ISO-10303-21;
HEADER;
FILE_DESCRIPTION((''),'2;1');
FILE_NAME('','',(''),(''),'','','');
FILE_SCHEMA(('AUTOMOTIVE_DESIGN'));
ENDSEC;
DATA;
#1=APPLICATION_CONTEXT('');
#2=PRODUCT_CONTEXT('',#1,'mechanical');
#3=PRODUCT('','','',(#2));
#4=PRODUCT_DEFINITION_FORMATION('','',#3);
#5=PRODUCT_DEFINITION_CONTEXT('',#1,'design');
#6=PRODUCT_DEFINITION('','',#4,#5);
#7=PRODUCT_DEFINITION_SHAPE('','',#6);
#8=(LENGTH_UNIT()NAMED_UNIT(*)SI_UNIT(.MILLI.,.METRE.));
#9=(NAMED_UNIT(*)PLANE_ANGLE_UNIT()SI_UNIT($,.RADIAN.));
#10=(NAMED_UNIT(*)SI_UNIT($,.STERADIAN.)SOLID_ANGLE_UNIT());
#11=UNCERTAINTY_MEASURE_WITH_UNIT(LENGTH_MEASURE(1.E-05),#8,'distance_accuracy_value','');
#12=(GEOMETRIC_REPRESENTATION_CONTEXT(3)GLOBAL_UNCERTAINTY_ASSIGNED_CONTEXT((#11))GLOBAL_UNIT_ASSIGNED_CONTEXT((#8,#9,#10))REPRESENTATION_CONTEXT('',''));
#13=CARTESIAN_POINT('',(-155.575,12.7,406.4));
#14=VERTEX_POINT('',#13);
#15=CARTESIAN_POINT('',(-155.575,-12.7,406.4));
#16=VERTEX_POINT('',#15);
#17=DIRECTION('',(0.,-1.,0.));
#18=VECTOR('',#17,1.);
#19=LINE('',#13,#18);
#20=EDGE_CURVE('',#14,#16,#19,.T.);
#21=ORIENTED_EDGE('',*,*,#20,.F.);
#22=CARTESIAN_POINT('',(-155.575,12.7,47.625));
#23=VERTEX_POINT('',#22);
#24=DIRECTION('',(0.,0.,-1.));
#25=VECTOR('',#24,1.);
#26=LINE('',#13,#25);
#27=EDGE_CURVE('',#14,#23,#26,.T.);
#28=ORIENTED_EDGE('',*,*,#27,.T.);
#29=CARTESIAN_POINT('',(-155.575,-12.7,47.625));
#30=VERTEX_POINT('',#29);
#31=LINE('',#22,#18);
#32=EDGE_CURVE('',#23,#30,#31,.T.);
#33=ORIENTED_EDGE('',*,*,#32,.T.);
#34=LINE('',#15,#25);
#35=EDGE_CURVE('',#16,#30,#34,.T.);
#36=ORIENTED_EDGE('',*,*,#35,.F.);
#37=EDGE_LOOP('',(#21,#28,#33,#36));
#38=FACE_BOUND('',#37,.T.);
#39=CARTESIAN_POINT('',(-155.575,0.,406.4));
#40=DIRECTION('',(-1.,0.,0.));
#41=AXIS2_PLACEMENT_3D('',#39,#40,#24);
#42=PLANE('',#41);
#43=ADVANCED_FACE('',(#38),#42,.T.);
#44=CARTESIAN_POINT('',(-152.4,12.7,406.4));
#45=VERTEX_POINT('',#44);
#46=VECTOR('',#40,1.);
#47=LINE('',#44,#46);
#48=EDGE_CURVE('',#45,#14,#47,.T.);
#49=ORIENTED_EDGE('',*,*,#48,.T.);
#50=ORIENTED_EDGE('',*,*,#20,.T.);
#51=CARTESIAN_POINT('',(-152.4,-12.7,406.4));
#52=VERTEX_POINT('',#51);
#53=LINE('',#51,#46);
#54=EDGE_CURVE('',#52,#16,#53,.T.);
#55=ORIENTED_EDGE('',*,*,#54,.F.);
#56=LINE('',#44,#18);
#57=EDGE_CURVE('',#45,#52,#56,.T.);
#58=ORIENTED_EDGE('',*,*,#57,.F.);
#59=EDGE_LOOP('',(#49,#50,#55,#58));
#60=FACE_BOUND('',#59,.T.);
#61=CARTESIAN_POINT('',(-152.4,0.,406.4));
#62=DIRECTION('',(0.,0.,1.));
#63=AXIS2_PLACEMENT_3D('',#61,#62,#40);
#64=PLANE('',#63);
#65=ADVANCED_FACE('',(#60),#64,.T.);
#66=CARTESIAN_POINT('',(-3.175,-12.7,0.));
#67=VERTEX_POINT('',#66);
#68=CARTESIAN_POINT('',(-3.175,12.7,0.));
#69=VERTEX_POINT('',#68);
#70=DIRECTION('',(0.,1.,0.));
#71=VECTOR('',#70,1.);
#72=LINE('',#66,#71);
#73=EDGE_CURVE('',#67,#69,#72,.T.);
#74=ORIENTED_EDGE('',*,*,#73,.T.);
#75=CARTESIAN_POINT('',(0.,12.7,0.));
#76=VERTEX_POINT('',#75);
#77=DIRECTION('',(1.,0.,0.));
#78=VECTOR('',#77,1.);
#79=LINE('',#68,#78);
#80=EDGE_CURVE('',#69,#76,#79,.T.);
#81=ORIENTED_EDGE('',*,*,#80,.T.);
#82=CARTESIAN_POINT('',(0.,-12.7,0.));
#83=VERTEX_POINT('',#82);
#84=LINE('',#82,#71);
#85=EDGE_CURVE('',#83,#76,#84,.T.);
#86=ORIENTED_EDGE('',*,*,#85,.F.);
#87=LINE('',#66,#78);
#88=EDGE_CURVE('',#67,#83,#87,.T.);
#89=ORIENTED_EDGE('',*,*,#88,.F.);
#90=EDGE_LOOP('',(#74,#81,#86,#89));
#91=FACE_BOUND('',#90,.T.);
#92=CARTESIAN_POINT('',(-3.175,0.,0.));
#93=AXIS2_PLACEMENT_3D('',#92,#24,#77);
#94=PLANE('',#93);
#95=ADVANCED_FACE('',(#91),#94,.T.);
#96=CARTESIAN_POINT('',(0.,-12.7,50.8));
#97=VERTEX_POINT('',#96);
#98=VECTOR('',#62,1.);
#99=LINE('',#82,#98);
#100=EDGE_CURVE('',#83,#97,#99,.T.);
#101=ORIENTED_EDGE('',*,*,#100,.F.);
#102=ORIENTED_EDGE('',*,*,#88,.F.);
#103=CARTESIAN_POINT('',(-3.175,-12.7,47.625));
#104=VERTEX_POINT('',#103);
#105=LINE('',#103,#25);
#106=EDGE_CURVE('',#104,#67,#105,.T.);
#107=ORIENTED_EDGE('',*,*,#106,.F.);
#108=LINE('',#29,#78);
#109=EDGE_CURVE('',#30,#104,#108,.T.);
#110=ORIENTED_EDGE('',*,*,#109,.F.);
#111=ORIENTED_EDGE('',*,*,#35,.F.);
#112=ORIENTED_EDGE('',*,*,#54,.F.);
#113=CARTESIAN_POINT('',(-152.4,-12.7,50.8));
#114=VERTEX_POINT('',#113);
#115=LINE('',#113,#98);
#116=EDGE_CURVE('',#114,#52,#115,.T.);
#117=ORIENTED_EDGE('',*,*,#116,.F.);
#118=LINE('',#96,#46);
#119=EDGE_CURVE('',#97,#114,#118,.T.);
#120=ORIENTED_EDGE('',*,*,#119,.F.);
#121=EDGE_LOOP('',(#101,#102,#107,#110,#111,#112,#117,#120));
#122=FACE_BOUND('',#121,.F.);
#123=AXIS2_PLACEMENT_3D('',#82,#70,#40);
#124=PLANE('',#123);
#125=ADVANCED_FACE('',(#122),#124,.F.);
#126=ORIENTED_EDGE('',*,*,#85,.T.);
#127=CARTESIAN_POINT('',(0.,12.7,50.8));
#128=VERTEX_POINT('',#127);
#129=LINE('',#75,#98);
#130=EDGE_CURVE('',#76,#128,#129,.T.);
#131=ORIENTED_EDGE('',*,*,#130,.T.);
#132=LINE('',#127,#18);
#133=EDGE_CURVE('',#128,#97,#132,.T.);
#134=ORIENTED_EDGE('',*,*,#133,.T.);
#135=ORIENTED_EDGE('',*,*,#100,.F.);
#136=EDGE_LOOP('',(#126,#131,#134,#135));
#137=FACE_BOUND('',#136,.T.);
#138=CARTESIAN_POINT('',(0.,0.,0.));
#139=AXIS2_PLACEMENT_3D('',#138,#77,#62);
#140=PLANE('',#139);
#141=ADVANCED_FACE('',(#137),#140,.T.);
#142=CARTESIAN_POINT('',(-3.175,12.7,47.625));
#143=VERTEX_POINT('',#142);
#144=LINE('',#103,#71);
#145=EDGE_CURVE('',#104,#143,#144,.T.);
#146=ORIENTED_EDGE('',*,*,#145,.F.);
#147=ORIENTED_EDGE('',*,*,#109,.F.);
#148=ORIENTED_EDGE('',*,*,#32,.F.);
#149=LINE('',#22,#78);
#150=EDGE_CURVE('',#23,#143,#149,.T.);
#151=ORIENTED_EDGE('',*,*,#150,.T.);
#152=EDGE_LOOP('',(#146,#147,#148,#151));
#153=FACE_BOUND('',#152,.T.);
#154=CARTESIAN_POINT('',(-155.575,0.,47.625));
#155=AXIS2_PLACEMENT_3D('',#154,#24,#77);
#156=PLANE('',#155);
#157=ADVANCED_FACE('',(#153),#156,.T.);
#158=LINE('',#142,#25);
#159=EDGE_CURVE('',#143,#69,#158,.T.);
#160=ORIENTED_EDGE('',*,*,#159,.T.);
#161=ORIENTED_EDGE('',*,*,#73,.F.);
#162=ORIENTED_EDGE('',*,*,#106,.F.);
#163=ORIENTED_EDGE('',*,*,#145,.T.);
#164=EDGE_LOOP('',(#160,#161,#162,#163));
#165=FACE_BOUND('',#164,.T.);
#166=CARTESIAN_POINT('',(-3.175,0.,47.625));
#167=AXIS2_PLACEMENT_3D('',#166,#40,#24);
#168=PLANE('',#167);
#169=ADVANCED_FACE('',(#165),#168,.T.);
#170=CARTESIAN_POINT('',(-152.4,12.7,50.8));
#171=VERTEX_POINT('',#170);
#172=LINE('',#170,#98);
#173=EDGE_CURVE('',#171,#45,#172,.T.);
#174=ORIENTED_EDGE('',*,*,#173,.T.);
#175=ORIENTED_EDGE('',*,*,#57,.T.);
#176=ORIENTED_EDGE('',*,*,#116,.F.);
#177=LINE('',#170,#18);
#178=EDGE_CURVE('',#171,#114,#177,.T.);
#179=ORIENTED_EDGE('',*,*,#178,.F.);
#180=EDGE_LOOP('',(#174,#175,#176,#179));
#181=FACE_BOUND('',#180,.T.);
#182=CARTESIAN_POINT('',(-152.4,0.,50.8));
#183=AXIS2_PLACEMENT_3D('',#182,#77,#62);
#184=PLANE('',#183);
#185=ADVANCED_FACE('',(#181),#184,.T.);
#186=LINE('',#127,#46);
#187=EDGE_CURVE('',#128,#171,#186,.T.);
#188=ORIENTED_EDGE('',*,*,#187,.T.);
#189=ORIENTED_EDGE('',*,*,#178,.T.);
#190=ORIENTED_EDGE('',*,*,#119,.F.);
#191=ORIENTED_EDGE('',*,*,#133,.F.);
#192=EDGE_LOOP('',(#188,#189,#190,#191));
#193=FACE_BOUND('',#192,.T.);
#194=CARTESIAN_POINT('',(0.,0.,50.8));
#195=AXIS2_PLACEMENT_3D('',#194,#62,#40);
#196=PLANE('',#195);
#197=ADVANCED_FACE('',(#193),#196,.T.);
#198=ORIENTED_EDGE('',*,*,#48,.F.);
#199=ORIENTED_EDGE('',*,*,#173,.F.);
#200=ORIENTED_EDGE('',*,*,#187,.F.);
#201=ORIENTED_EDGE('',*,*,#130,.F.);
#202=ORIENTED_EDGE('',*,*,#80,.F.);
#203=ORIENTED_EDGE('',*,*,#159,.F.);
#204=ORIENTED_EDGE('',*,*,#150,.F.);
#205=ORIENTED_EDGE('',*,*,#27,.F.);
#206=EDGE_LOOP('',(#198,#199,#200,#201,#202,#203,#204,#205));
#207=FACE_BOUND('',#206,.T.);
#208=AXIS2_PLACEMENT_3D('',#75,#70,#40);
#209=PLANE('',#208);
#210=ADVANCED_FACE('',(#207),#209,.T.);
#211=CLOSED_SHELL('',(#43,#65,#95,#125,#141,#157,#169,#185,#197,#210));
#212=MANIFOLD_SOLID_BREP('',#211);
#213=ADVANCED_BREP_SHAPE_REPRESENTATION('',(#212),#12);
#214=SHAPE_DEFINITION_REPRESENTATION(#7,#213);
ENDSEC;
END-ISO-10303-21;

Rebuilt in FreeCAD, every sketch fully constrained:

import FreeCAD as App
import Part
import Sketcher
Q = App.Units.Quantity

doc = App.newDocument("Part")
params = doc.addObject("Spreadsheet::Sheet", "Params")
for row, (alias, value) in enumerate([
    ("sketch1_width", "6 in"),
    ("sketch1_height", "2 in"),
    ("sketch1_width2", "0.125 in"),
    ("pad1_length", "1 in"),
], start=1):
    params.set(f"A{row}", alias)
    params.set(f"B{row}", "=" + value)
    params.setAlias(f"B{row}", alias)

body = doc.addObject("PartDesign::Body", "Body")

# Sketch on XZ plane
sketch1 = doc.addObject("Sketcher::SketchObject", "Sketch")
body.addObject(sketch1)
sketch1.AttachmentSupport = (doc.XZ_Plane, [""])
sketch1.MapMode = "FlatFace"
sketch1.addGeometry([
    Part.LineSegment(App.Vector(0, 50.8, 0), App.Vector(0, 0, 0)),  # 0
    Part.LineSegment(App.Vector(0, 0, 0), App.Vector(-3.2, 0, 0)),  # 1
    Part.LineSegment(App.Vector(-3.2, 0, 0), App.Vector(-3.2, 47.6, 0)),  # 2
    Part.LineSegment(App.Vector(-3.2, 47.6, 0), App.Vector(-155.6, 47.6, 0)),  # 3
    Part.LineSegment(App.Vector(-155.6, 47.6, 0), App.Vector(-155.6, 406.4, 0)),  # 4
    Part.LineSegment(App.Vector(-155.6, 406.4, 0), App.Vector(-152.4, 406.4, 0)),  # 5
    Part.LineSegment(App.Vector(-152.4, 406.4, 0), App.Vector(-152.4, 50.8, 0)),  # 6
    Part.LineSegment(App.Vector(-152.4, 50.8, 0), App.Vector(0, 50.8, 0)),  # 7
], False)
sketch1.addConstraint([
    Sketcher.Constraint("Coincident", 0, 2, 1, 1),
    Sketcher.Constraint("Coincident", 1, 2, 2, 1),
    Sketcher.Constraint("Coincident", 2, 2, 3, 1),
    Sketcher.Constraint("Coincident", 3, 2, 4, 1),
    Sketcher.Constraint("Coincident", 4, 2, 5, 1),
    Sketcher.Constraint("Coincident", 5, 2, 6, 1),
    Sketcher.Constraint("Coincident", 6, 2, 7, 1),
    Sketcher.Constraint("Coincident", 7, 2, 0, 1),
    Sketcher.Constraint("Vertical", 0),
    Sketcher.Constraint("Horizontal", 1),
    Sketcher.Constraint("Vertical", 2),
    Sketcher.Constraint("Horizontal", 3),
    Sketcher.Constraint("Vertical", 4),
    Sketcher.Constraint("Horizontal", 5),
    Sketcher.Constraint("Vertical", 6),
    Sketcher.Constraint("Horizontal", 7),
    Sketcher.Constraint("Coincident", 0, 2, -1, 1),
    Sketcher.Constraint("Equal", 1, 5),
    Sketcher.Constraint("DistanceX", 3, 2, 3, 1, Q("6 in")),
    Sketcher.Constraint("DistanceY", 0, 2, 0, 1, Q("2 in")),
    Sketcher.Constraint("DistanceY", -1, 1, 4, 2, Q("16 in")),
    Sketcher.Constraint("DistanceX", 1, 2, 1, 1, Q("0.125 in")),
    Sketcher.Constraint("DistanceY", 3, 2, 6, 2, Q("0.125 in")),
])
sketch1.setExpression("Constraints[18]", "Params.sketch1_width")
sketch1.setExpression("Constraints[19]", "Params.sketch1_height")
sketch1.setExpression("Constraints[21]", "Params.sketch1_width2")
pad1 = doc.addObject("PartDesign::Pad", "Pad")
body.addObject(pad1)
pad1.Profile = sketch1
pad1.setExpression("Length", "Params.pad1_length")
pad1.Midplane = True

doc.recompute()
